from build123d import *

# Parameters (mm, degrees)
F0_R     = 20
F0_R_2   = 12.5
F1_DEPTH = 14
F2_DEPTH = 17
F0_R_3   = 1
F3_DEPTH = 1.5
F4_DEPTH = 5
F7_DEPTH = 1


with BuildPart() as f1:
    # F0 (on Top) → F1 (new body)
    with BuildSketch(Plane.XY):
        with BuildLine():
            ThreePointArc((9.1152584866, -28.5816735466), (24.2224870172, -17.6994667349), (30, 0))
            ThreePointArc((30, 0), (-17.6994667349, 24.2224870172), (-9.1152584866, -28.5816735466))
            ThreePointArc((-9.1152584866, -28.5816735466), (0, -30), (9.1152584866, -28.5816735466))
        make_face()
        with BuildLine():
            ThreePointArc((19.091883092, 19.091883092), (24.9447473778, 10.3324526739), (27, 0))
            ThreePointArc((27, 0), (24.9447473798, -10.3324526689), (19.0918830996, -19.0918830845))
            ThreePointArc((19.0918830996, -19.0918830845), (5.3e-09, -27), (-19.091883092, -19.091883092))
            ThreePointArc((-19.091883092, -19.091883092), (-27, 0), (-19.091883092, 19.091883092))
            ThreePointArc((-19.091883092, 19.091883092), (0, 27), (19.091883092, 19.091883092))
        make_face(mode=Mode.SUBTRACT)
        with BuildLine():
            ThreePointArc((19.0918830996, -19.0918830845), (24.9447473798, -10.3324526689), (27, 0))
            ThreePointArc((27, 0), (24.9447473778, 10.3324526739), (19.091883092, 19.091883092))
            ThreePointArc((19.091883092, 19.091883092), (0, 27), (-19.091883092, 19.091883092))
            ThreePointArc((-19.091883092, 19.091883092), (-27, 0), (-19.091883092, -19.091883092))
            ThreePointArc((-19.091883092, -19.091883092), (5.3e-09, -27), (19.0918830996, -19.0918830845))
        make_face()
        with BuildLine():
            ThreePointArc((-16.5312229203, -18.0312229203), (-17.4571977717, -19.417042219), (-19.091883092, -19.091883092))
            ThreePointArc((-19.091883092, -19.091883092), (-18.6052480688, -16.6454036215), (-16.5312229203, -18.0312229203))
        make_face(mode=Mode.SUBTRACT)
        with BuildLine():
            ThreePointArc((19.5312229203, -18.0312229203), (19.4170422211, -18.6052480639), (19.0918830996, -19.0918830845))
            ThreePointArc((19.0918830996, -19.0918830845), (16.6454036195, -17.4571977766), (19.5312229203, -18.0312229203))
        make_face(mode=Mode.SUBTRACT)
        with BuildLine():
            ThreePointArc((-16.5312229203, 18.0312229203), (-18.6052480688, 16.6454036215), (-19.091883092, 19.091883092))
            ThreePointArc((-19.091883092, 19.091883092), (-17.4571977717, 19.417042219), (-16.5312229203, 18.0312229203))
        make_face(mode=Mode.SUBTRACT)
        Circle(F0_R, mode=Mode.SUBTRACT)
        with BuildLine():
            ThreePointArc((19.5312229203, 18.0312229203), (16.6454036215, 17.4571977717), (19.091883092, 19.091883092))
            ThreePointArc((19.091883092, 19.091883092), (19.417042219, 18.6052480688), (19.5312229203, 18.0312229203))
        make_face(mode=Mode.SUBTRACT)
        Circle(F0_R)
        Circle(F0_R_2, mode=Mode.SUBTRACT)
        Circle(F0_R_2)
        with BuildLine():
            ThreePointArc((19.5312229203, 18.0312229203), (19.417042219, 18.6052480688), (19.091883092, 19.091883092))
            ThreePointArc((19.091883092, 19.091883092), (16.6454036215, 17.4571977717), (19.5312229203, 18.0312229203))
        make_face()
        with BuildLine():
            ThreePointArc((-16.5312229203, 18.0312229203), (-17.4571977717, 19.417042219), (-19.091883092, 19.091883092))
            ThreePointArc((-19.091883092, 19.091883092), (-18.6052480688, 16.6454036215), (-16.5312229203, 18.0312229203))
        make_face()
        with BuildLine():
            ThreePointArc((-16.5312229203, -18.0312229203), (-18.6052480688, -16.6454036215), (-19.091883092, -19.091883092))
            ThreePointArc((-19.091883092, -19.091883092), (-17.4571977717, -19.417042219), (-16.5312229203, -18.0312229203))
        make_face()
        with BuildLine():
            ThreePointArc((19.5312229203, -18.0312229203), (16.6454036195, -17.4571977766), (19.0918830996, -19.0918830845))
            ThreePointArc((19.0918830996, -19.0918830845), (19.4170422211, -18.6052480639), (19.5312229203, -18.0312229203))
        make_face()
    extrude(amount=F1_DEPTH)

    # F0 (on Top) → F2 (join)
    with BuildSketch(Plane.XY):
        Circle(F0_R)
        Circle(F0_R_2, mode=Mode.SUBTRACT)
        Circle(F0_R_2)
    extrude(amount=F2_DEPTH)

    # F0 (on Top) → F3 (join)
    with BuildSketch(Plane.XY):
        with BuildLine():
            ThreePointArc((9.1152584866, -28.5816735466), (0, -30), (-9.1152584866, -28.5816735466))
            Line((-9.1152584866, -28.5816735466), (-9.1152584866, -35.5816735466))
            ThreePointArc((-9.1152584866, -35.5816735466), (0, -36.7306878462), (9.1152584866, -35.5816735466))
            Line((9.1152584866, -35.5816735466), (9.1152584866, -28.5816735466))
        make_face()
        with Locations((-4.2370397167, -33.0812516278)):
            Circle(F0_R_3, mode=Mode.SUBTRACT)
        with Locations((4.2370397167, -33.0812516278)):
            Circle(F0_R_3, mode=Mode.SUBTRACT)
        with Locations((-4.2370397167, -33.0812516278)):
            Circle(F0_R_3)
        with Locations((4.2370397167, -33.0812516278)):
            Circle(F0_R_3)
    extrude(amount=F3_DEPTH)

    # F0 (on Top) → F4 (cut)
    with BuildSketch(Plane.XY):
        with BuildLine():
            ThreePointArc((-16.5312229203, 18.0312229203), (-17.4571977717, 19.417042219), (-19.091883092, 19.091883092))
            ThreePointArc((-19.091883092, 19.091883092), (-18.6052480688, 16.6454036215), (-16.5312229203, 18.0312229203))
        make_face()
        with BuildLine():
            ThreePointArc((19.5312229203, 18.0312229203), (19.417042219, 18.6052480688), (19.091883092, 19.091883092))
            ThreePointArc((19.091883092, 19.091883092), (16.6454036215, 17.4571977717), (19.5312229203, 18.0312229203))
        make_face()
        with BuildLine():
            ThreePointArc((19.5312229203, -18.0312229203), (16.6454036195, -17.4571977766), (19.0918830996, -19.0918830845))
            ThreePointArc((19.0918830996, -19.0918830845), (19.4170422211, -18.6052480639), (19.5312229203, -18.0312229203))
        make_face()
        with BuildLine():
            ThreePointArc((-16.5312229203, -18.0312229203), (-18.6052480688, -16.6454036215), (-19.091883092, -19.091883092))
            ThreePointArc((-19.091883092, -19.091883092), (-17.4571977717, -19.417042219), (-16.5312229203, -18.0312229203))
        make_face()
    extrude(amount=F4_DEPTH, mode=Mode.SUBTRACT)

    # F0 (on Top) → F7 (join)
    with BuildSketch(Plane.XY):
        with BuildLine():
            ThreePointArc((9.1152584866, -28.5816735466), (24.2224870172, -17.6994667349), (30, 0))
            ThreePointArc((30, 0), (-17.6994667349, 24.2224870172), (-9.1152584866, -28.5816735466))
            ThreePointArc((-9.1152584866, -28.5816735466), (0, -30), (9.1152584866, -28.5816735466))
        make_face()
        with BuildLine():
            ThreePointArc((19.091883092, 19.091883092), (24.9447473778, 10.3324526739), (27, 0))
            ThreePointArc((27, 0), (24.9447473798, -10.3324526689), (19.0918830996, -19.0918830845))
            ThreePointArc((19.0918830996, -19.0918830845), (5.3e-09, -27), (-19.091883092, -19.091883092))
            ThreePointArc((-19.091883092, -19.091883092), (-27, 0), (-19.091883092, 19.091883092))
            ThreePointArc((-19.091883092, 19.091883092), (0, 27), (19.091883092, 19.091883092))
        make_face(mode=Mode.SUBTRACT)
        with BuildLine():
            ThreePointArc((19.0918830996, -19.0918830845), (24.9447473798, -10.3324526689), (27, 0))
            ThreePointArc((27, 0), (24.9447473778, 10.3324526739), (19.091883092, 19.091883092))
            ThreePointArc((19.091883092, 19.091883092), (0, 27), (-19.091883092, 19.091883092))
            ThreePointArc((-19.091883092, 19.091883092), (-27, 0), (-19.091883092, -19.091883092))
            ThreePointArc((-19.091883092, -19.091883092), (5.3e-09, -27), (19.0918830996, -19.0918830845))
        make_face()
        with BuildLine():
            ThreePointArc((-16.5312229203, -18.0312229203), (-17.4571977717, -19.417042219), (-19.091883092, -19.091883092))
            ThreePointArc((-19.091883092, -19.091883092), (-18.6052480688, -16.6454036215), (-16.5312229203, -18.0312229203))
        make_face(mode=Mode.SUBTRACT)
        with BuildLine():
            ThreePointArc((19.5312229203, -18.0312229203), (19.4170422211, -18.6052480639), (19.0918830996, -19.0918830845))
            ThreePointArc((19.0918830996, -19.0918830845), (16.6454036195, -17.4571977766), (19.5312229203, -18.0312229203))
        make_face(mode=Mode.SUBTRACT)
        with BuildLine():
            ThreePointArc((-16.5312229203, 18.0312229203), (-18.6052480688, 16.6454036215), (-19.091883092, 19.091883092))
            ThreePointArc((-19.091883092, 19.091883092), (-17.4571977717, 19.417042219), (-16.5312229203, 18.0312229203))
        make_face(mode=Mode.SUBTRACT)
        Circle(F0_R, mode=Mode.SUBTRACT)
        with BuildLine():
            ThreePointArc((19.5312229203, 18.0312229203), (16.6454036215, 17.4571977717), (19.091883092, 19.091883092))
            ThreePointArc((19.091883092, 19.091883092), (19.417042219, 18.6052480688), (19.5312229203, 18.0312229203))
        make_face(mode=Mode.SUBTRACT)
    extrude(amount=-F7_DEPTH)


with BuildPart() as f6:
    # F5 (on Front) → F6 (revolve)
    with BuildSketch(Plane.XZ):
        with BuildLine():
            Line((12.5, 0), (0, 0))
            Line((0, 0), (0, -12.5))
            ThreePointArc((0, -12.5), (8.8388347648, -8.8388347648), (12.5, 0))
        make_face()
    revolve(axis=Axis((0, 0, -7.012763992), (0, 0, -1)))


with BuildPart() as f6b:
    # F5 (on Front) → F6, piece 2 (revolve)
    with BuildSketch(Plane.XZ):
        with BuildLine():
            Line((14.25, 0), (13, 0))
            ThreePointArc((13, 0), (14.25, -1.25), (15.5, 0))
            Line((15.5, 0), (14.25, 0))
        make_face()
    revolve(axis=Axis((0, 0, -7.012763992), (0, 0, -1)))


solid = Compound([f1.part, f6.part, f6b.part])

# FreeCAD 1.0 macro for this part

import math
import FreeCAD as App
import Part
import Sketcher
from FreeCAD import Vector

doc = App.newDocument("Part")
body = doc.addObject("PartDesign::Body", "Body")

# Sketch on XY plane
sketch1 = body.newObject("Sketcher::SketchObject", "Sketch")
sketch1.AttachmentSupport = (doc.getObject("XY_Plane"), [""])
sketch1.MapMode = "FlatFace"
sketch1.addGeometry([
    Part.ArcOfCircle(Part.Circle(Vector(0, 0, 0), Vector(0, 0, 1), 30), math.radians(-72), math.radians(0)),
    Part.ArcOfCircle(Part.Circle(Vector(0, 0, 0), Vector(0, 0, 1), 30), math.radians(0), math.radians(252)),
    Part.ArcOfCircle(Part.Circle(Vector(0, 0, 0), Vector(0, 0, 1), 30), math.radians(-108), math.radians(-72)),
], False)
sketch1.addConstraint([
    Sketcher.Constraint("Tangent", 0, 2, 1, 1),
    Sketcher.Constraint("Tangent", 1, 2, 2, 1),
    Sketcher.Constraint("Tangent", 2, 2, 0, 1),
    Sketcher.Constraint("Coincident", 0, 3, -1, 1),
    Sketcher.Constraint("PointOnObject", 0, 2, -1),
    Sketcher.Constraint("Horizontal", 1, 2, 2, 2),
    Sketcher.Constraint("Radius", 0, 30.0),
    Sketcher.Constraint("DistanceX", 1, 2, -1, 1, 9.115258),
])
pad1 = body.newObject("PartDesign::Pad", "Pad")
pad1.Profile = sketch1
pad1.Length = 14

# Sketch on XY plane
sketch2 = body.newObject("Sketcher::SketchObject", "Sketch001")
sketch2.AttachmentSupport = (doc.getObject("XY_Plane"), [""])
sketch2.MapMode = "FlatFace"
sketch2.addGeometry(Part.Circle(Vector(0, 0, 0), Vector(0, 0, 1), 20), False)
sketch2.addConstraint([
    Sketcher.Constraint("Coincident", 0, 3, -1, 1),
    Sketcher.Constraint("Diameter", 0, 40.0),
])
pad2 = body.newObject("PartDesign::Pad", "Pad001")
pad2.Profile = sketch2
pad2.Length = 17

# Sketch on XY plane
sketch3 = body.newObject("Sketcher::SketchObject", "Sketch002")
sketch3.AttachmentSupport = (doc.getObject("XY_Plane"), [""])
sketch3.MapMode = "FlatFace"
sketch3.addGeometry([
    Part.ArcOfCircle(Part.Circle(Vector(0, 0, 0), Vector(0, 0, 1), 30), math.radians(-108), math.radians(-72)),
    Part.LineSegment(Vector(-9, -29, 0), Vector(-9, -36, 0)),
    Part.ArcOfCircle(Part.Circle(Vector(0, 0, 0), Vector(0, 0, 1), 37), math.radians(-104), math.radians(-76)),
    Part.LineSegment(Vector(9, -36, 0), Vector(9, -29, 0)),
], False)
sketch3.addConstraint([
    Sketcher.Constraint("Coincident", 0, 1, 1, 1),
    Sketcher.Constraint("Coincident", 1, 2, 2, 1),
    Sketcher.Constraint("Coincident", 2, 2, 3, 1),
    Sketcher.Constraint("Coincident", 3, 2, 0, 2),
    Sketcher.Constraint("Vertical", 1),
    Sketcher.Constraint("Vertical", 3),
    Sketcher.Constraint("Coincident", 0, 3, -1, 1),
    Sketcher.Constraint("Coincident", 2, 3, -1, 1),
    Sketcher.Constraint("Horizontal", 1, 2, 2, 2),
    Sketcher.Constraint("Radius", 0, 30.0),
    Sketcher.Constraint("DistanceY", 1, 2, 1, 1, 7.0),
    Sketcher.Constraint("Radius", 2, 36.730688),
])
pad3 = body.newObject("PartDesign::Pad", "Pad002")
pad3.Profile = sketch3
pad3.Length = 1.5

# Sketch on XY plane
sketch4 = body.newObject("Sketcher::SketchObject", "Sketch003")
sketch4.AttachmentSupport = (doc.getObject("XY_Plane"), [""])
sketch4.MapMode = "FlatFace"
sketch4.addGeometry([
    Part.ArcOfCircle(Part.Circle(Vector(-18, 18, 0), Vector(0, 0, 1), 1.5), math.radians(0), math.radians(135)),  # 0
    Part.ArcOfCircle(Part.Circle(Vector(-18, 18, 0), Vector(0, 0, 1), 1.5), math.radians(135), math.radians(360)),  # 1
    Part.ArcOfCircle(Part.Circle(Vector(18, 18, 0), Vector(0, 0, 1), 1.5), math.radians(0), math.radians(45)),  # 2
    Part.ArcOfCircle(Part.Circle(Vector(18, 18, 0), Vector(0, 0, 1), 1.5), math.radians(45), math.radians(360)),  # 3
    Part.ArcOfCircle(Part.Circle(Vector(18, -18, 0), Vector(0, 0, 1), 1.5), math.radians(0), math.radians(315)),  # 4
    Part.ArcOfCircle(Part.Circle(Vector(18, -18, 0), Vector(0, 0, 1), 1.5), math.radians(-45), math.radians(0)),  # 5
    Part.ArcOfCircle(Part.Circle(Vector(-18, -18, 0), Vector(0, 0, 1), 1.5), math.radians(0), math.radians(225)),  # 6
    Part.ArcOfCircle(Part.Circle(Vector(-18, -18, 0), Vector(0, 0, 1), 1.5), math.radians(-135), math.radians(0)),  # 7
], False)
sketch4.addConstraint([
    Sketcher.Constraint("Tangent", 0, 1, 1, 2),
    Sketcher.Constraint("Coincident", 1, 1, 0, 2),
    Sketcher.Constraint("Tangent", 2, 1, 3, 2),
    Sketcher.Constraint("Coincident", 3, 1, 2, 2),
    Sketcher.Constraint("Tangent", 4, 1, 5, 2),
    Sketcher.Constraint("Coincident", 5, 1, 4, 2),
    Sketcher.Constraint("Tangent", 6, 1, 7, 2),
    Sketcher.Constraint("Coincident", 7, 1, 6, 2),
    Sketcher.Constraint("Equal", 1, 2),
    Sketcher.Constraint("Equal", 3, 4),
    Sketcher.Constraint("Equal", 5, 6),
    Sketcher.Constraint("Symmetric", 0, 3, 4, 3, -1, 1),
    Sketcher.Constraint("Symmetric", 2, 3, 6, 3, -1, 1),
    Sketcher.Constraint("Symmetric", 0, 3, 2, 3, -2),
    Sketcher.Constraint("Horizontal", 3, 3, 0, 1),
    Sketcher.Constraint("Horizontal", 0, 1, 2, 1),
    Sketcher.Constraint("Horizontal", 1, 1, 3, 1),
    Sketcher.Constraint("Horizontal", 7, 3, 4, 1),
    Sketcher.Constraint("Horizontal", 4, 1, 6, 1),
    Sketcher.Constraint("Horizontal", 5, 1, 7, 1),
    Sketcher.Constraint("Vertical", 3, 1, 5, 1),
    Sketcher.Constraint("Radius", 0, 1.5),
    Sketcher.Constraint("DistanceX", 1, 1, 0, 3, 1.06066),
    Sketcher.Constraint("DistanceX", 0, 3, -1, 1, 18.031223),
    Sketcher.Constraint("DistanceY", -1, 1, 0, 3, 18.031223),
])
pocket1 = body.newObject("PartDesign::Pocket", "Pocket")
pocket1.Profile = sketch4
pocket1.Length = 5
pocket1.Reversed = True

# Sketch on XY plane
sketch5 = body.newObject("Sketcher::SketchObject", "Sketch004")
sketch5.AttachmentSupport = (doc.getObject("XY_Plane"), [""])
sketch5.MapMode = "FlatFace"
sketch5.addGeometry([
    Part.ArcOfCircle(Part.Circle(Vector(0, 0, 0), Vector(0, 0, 1), 30), math.radians(-72), math.radians(0)),  # 0
    Part.ArcOfCircle(Part.Circle(Vector(0, 0, 0), Vector(0, 0, 1), 30), math.radians(0), math.radians(252)),  # 1
    Part.ArcOfCircle(Part.Circle(Vector(0, 0, 0), Vector(0, 0, 1), 30), math.radians(-108), math.radians(-72)),  # 2
    Part.ArcOfCircle(Part.Circle(Vector(-18, -18, 0), Vector(0, 0, 1), 1.5), math.radians(0), math.radians(225)),  # 3
    Part.ArcOfCircle(Part.Circle(Vector(-18, -18, 0), Vector(0, 0, 1), 1.5), math.radians(-135), math.radians(0)),  # 4
    Part.ArcOfCircle(Part.Circle(Vector(18, -18, 0), Vector(0, 0, 1), 1.5), math.radians(0), math.radians(315)),  # 5
    Part.ArcOfCircle(Part.Circle(Vector(18, -18, 0), Vector(0, 0, 1), 1.5), math.radians(-45), math.radians(0)),  # 6
    Part.ArcOfCircle(Part.Circle(Vector(-18, 18, 0), Vector(0, 0, 1), 1.5), math.radians(0), math.radians(135)),  # 7
    Part.ArcOfCircle(Part.Circle(Vector(-18, 18, 0), Vector(0, 0, 1), 1.5), math.radians(135), math.radians(360)),  # 8
    Part.Circle(Vector(0, 0, 0), Vector(0, 0, 1), 20),  # 9
    Part.ArcOfCircle(Part.Circle(Vector(18, 18, 0), Vector(0, 0, 1), 1.5), math.radians(0), math.radians(45)),  # 10
    Part.ArcOfCircle(Part.Circle(Vector(18, 18, 0), Vector(0, 0, 1), 1.5), math.radians(45), math.radians(360)),  # 11
], False)
sketch5.addConstraint([
    Sketcher.Constraint("Tangent", 0, 2, 1, 1),
    Sketcher.Constraint("Tangent", 1, 2, 2, 1),
    Sketcher.Constraint("Tangent", 2, 2, 0, 1),
    Sketcher.Constraint("Tangent", 3, 1, 4, 2),
    Sketcher.Constraint("Coincident", 4, 1, 3, 2),
    Sketcher.Constraint("Tangent", 5, 1, 6, 2),
    Sketcher.Constraint("Coincident", 6, 1, 5, 2),
    Sketcher.Constraint("Tangent", 7, 1, 8, 2),
    Sketcher.Constraint("Coincident", 8, 1, 7, 2),
    Sketcher.Constraint("Tangent", 10, 1, 11, 2),
    Sketcher.Constraint("Coincident", 11, 1, 10, 2),
    Sketcher.Constraint("Coincident", 0, 3, -1, 1),
    Sketcher.Constraint("Coincident", 9, 3, -1, 1),
    Sketcher.Constraint("Equal", 4, 5),
    Sketcher.Constraint("Equal", 6, 7),
    Sketcher.Constraint("Equal", 8, 10),
    Sketcher.Constraint("Symmetric", 5, 3, 7, 3, -1, 1),
    Sketcher.Constraint("Symmetric", 3, 3, 10, 3, -1, 1),
    Sketcher.Constraint("Symmetric", 3, 3, 5, 3, -2),
    Sketcher.Constraint("PointOnObject", 0, 2, -1),
    Sketcher.Constraint("Horizontal", 1, 2, 2, 2),
    Sketcher.Constraint("Horizontal", 6, 3, 3, 1),
    Sketcher.Constraint("Horizontal", 3, 1, 5, 1),
    Sketcher.Constraint("Horizontal", 4, 1, 6, 1),
    Sketcher.Constraint("Horizontal", 11, 3, 7, 1),
    Sketcher.Constraint("Horizontal", 7, 1, 10, 1),
    Sketcher.Constraint("Horizontal", 8, 1, 11, 1),
    Sketcher.Constraint("Vertical", 4, 1, 8, 1),
    Sketcher.Constraint("Diameter", 9, 40.0),
    Sketcher.Constraint("Radius", 0, 30.0),
    Sketcher.Constraint("Radius", 3, 1.5),
    Sketcher.Constraint("DistanceX", 1, 2, -1, 1, 9.115258),
    Sketcher.Constraint("DistanceY", 1, 2, 3, 3, 10.550451),
    Sketcher.Constraint("DistanceX", 1, 2, 5, 3, 27.146481),
    Sketcher.Constraint("DistanceX", 4, 1, 3, 3, 1.06066),
])
pad4 = body.newObject("PartDesign::Pad", "Pad003")
pad4.Profile = sketch5
pad4.Length = 1
pad4.Reversed = True
body2 = doc.addObject("PartDesign::Body", "Body001")

# Sketch on XZ plane
sketch6 = body2.newObject("Sketcher::SketchObject", "Sketch005")
sketch6.AttachmentSupport = (doc.getObject("XZ_Plane001"), [""])
sketch6.MapMode = "FlatFace"
sketch6.addGeometry([
    Part.LineSegment(Vector(12, 0, 0), Vector(0, 0, 0)),
    Part.LineSegment(Vector(0, 0, 0), Vector(0, -12, 0)),
    Part.ArcOfCircle(Part.Circle(Vector(0, 0, 0), Vector(0, 0, 1), 12), math.radians(-90), math.radians(0)),
], False)
sketch6.addConstraint([
    Sketcher.Constraint("Coincident", 0, 2, 1, 1),
    Sketcher.Constraint("Coincident", 1, 2, 2, 1),
    Sketcher.Constraint("Coincident", 2, 2, 0, 1),
    Sketcher.Constraint("Horizontal", 0),
    Sketcher.Constraint("Vertical", 1),
    Sketcher.Constraint("Coincident", 2, 3, -1, 1),
    Sketcher.Constraint("Coincident", 0, 2, -1, 1),
    Sketcher.Constraint("Radius", 2, 12.5),
])
revolution = body2.newObject("PartDesign::Revolution", "Revolution")
revolution.Profile = sketch6
revolution.ReferenceAxis = (sketch6, ["V_Axis"])
revolution.Angle = 360
body3 = doc.addObject("PartDesign::Body", "Body002")

# Sketch on XZ plane
sketch7 = body3.newObject("Sketcher::SketchObject", "Sketch006")
sketch7.AttachmentSupport = (doc.getObject("XZ_Plane002"), [""])
sketch7.MapMode = "FlatFace"
sketch7.addGeometry([
    Part.ArcOfCircle(Part.Circle(Vector(14.2, 0, 0), Vector(0, 0, 1), 1.2), math.radians(180), math.radians(360)),
    Part.LineSegment(Vector(15.5, 0, 0), Vector(13, 0, 0)),
], False)
sketch7.addConstraint([
    Sketcher.Constraint("Coincident", 0, 1, 1, 2),
    Sketcher.Constraint("Coincident", 1, 1, 0, 2),
    Sketcher.Constraint("Horizontal", 1),
    Sketcher.Constraint("PointOnObject", 0, 3, -1),
    Sketcher.Constraint("PointOnObject", 0, 1, -1),
    Sketcher.Constraint("Radius", 0, 1.25),
    Sketcher.Constraint("DistanceX", -1, 1, 0, 1, 13.0),
])
revolution2 = body3.newObject("PartDesign::Revolution", "Revolution001")
revolution2.Profile = sketch7
revolution2.ReferenceAxis = (sketch7, ["V_Axis"])
revolution2.Angle = 360

doc.recompute()
